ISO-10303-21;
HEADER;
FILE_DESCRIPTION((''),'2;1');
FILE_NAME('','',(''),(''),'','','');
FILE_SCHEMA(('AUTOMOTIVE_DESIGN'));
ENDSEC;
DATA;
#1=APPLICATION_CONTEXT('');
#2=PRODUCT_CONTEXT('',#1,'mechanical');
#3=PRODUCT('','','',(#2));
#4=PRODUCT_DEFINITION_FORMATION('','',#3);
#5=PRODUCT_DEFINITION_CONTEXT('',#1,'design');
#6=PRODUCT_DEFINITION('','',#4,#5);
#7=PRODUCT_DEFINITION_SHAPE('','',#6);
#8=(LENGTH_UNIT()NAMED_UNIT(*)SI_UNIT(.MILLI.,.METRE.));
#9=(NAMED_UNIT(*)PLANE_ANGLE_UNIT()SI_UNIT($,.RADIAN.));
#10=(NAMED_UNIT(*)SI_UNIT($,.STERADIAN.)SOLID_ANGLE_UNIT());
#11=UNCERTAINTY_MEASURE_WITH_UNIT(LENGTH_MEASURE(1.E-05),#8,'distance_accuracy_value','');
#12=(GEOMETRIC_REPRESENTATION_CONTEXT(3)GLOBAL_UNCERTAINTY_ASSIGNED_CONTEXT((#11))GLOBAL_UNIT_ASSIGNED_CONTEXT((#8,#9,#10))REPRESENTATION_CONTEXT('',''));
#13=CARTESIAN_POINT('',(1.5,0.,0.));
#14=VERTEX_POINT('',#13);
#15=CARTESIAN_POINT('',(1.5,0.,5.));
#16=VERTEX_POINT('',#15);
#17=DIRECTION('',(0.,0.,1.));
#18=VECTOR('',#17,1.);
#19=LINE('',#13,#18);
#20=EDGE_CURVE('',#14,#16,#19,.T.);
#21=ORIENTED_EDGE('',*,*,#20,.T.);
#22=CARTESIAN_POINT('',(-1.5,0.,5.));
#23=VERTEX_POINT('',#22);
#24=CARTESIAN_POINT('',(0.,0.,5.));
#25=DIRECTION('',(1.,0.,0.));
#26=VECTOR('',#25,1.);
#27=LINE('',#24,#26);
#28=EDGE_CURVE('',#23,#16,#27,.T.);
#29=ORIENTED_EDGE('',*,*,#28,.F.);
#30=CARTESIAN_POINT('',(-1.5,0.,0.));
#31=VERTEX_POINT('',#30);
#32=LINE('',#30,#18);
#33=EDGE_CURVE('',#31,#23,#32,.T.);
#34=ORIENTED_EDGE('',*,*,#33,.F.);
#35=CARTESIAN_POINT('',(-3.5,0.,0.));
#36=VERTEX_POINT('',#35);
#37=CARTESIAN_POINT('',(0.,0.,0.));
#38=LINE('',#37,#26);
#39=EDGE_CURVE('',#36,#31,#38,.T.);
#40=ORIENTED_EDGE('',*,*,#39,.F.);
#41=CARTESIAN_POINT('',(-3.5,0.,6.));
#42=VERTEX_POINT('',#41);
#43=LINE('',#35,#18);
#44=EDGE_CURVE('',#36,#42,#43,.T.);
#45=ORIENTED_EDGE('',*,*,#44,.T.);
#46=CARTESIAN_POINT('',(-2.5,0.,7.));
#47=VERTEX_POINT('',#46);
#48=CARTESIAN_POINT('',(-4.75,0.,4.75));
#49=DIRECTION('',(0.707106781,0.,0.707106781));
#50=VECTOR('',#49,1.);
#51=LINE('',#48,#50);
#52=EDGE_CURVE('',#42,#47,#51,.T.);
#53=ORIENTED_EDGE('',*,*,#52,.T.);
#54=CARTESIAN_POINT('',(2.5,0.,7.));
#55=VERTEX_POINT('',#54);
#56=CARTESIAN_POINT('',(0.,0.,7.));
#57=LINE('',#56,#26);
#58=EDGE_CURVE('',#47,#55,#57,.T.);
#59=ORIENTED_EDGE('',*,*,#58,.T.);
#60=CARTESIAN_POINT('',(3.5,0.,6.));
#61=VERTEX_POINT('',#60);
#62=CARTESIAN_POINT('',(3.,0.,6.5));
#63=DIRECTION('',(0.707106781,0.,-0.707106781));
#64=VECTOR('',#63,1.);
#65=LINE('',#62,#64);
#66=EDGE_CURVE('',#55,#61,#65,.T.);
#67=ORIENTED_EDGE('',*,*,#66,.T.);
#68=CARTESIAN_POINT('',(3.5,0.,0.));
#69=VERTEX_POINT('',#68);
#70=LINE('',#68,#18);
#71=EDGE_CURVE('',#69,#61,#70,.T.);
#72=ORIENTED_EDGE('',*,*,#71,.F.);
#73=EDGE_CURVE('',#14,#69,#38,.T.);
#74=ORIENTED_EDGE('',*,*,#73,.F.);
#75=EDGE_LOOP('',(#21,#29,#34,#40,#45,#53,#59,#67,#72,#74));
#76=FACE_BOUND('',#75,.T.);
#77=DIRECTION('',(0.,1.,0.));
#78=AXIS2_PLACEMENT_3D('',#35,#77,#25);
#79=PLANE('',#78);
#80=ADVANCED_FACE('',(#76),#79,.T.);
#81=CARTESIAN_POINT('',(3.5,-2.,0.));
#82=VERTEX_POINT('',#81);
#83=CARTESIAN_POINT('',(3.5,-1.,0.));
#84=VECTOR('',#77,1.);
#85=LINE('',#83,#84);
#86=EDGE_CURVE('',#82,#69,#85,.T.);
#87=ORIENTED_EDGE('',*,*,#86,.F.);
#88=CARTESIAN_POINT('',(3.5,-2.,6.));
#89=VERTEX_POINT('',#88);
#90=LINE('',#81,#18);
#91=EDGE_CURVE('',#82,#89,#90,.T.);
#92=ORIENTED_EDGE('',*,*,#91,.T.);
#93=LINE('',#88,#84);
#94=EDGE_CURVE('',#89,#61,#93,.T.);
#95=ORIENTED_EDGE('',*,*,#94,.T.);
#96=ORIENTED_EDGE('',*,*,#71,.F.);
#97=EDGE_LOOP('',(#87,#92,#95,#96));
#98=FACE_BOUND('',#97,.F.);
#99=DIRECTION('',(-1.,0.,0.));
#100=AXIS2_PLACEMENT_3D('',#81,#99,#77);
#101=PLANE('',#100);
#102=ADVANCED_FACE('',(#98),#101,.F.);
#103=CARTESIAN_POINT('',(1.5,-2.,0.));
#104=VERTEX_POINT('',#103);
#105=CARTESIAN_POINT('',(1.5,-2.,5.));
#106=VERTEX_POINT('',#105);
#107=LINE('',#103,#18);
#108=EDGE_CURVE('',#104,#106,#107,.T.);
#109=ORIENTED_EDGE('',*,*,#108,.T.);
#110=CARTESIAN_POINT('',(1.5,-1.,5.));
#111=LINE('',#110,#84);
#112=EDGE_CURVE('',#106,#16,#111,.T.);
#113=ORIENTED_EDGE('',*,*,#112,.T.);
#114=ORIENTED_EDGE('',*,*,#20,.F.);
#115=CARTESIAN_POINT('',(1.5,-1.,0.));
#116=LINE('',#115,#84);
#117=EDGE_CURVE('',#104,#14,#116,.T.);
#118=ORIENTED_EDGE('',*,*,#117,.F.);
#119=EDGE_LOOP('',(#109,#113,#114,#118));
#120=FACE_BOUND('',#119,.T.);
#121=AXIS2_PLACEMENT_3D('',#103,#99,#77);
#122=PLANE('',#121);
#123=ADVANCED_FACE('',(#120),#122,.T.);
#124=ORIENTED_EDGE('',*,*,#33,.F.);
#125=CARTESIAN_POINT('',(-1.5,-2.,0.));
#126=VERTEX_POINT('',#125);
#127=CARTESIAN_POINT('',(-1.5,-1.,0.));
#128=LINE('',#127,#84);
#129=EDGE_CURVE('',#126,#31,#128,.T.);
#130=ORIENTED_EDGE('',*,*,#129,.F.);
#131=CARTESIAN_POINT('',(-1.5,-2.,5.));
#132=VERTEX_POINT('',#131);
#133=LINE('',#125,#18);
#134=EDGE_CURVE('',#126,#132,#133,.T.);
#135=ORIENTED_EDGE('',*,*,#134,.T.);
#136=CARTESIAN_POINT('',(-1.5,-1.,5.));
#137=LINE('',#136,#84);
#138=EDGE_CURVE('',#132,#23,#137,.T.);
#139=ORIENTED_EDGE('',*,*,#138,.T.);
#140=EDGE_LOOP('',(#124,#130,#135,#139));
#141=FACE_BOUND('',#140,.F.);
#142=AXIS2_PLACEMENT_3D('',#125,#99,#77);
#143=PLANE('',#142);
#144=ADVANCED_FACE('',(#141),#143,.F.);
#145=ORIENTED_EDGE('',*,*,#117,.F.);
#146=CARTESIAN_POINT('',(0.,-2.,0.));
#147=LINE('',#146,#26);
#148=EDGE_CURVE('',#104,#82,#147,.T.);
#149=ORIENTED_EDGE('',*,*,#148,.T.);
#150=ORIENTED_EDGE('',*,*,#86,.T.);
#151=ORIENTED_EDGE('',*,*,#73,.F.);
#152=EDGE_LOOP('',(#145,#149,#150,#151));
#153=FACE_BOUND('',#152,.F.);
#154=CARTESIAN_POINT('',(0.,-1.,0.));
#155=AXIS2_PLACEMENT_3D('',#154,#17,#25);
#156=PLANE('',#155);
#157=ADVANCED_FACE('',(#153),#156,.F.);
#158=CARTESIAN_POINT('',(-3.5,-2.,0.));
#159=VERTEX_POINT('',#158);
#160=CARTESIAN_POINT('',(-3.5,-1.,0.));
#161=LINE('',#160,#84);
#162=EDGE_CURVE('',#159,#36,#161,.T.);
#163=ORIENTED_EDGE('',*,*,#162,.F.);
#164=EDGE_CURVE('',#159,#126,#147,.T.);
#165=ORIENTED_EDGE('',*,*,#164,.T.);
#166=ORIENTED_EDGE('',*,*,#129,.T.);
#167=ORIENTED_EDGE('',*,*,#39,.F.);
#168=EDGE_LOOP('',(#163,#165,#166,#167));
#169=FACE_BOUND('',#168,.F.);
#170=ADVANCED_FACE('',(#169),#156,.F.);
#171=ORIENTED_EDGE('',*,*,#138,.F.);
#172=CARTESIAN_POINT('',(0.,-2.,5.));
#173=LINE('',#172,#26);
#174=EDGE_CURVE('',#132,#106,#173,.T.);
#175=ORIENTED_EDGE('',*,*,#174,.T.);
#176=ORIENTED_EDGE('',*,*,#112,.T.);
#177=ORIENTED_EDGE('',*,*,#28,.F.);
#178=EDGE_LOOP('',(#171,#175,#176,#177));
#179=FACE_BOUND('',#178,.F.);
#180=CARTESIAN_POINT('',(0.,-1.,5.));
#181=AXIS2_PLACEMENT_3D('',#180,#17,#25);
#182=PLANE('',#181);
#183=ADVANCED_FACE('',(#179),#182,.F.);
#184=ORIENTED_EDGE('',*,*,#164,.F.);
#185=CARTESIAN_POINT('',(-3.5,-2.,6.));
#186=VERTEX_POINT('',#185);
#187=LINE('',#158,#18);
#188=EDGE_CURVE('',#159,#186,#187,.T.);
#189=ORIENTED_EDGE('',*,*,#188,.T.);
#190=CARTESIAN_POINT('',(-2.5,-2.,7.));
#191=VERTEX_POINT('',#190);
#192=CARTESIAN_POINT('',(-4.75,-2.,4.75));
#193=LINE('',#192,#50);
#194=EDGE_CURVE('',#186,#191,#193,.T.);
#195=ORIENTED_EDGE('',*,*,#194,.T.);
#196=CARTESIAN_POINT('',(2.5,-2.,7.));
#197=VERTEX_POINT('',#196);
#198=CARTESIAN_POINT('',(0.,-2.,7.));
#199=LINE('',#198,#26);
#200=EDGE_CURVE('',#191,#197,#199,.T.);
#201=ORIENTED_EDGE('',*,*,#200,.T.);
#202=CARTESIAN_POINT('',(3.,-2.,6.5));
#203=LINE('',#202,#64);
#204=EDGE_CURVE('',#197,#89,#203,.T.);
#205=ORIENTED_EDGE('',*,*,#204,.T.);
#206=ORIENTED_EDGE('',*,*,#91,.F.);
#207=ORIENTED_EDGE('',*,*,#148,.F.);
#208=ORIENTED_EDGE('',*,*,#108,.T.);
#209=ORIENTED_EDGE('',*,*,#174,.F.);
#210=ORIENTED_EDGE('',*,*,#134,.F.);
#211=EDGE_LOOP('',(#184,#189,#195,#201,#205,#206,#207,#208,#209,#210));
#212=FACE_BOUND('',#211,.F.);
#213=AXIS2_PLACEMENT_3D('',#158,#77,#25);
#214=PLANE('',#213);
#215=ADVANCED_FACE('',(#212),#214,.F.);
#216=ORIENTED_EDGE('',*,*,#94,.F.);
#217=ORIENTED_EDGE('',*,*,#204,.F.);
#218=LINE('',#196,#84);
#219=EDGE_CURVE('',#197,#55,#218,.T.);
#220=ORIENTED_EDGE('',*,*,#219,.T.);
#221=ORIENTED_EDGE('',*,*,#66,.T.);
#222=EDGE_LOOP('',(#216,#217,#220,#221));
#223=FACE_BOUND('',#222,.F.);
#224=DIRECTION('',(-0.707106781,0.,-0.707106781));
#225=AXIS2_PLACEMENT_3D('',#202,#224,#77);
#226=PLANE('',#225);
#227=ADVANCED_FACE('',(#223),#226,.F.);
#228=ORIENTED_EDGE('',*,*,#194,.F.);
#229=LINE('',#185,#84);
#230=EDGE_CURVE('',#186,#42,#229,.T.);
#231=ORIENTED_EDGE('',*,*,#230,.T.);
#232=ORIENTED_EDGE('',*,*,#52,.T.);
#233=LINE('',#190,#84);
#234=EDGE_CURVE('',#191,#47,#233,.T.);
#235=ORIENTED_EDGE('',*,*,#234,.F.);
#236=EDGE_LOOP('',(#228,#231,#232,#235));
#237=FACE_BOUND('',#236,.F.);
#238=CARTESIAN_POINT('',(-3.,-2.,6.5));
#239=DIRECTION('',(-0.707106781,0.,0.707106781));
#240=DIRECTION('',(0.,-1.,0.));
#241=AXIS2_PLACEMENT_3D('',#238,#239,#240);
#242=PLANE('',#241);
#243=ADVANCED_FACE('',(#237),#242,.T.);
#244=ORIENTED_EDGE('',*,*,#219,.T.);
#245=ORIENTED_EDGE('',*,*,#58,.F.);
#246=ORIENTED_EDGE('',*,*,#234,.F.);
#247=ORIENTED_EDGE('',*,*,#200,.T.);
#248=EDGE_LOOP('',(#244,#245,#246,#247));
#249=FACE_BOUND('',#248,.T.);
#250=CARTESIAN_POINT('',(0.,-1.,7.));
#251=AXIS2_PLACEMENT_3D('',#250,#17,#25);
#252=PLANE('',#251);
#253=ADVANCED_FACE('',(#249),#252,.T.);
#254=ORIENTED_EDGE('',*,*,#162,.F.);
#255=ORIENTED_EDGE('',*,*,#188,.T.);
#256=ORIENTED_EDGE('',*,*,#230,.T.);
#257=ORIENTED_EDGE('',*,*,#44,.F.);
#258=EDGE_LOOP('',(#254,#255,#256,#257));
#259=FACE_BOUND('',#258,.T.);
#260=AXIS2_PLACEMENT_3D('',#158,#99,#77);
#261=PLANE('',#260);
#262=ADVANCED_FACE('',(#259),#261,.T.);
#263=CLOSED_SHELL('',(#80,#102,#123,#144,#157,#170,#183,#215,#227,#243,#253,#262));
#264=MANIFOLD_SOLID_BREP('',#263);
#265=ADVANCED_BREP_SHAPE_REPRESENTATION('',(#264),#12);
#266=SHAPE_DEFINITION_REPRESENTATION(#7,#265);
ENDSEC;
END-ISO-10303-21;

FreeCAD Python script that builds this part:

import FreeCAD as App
import Part
import Sketcher
from FreeCAD import Vector
Q = App.Units.Quantity


def edges_at(feature, points):
    """Names of the edges that pass closest to the given points."""
    edges = feature.Shape.Edges
    near = lambda p: min(range(len(edges)), key=lambda i: edges[i].distToShape(Part.Vertex(*p))[0])
    return sorted({f"Edge{near(p) + 1}" for p in points})

doc = App.newDocument("Part")
body = doc.addObject("PartDesign::Body", "Body")

# Sketch on XY plane
sketch1 = doc.addObject("Sketcher::SketchObject", "Sketch")
body.addObject(sketch1)
sketch1.AttachmentSupport = (doc.XY_Plane, [""])
sketch1.MapMode = "FlatFace"
sketch1.addGeometry([
    Part.LineSegment(Vector(-1.5, 0, 0), Vector(-1.5, -2, 0)),
    Part.LineSegment(Vector(-1.5, -2, 0), Vector(1.5, -2, 0)),
    Part.LineSegment(Vector(1.5, -2, 0), Vector(1.5, 0, 0)),
    Part.LineSegment(Vector(1.5, 0, 0), Vector(-1.5, 0, 0)),
], False)
sketch1.addConstraint([
    Sketcher.Constraint("Coincident", 0, 2, 1, 1),
    Sketcher.Constraint("Coincident", 1, 2, 2, 1),
    Sketcher.Constraint("Coincident", 2, 2, 3, 1),
    Sketcher.Constraint("Coincident", 3, 2, 0, 1),
    Sketcher.Constraint("Vertical", 0),
    Sketcher.Constraint("Horizontal", 1),
    Sketcher.Constraint("Vertical", 2),
    Sketcher.Constraint("Horizontal", 3),
    Sketcher.Constraint("Symmetric", 2, 2, 3, 2, -1, 1),
    Sketcher.Constraint("DistanceX", 1, 1, 1, 2, Q("3 mm")),
    Sketcher.Constraint("DistanceY", 0, 2, 0, 1, Q("2 mm")),
])
pad1 = doc.addObject("PartDesign::Pad", "Pad")
body.addObject(pad1)
pad1.Profile = sketch1
pad1.Length = 5
body2 = doc.addObject("PartDesign::Body", "Body001")

# Sketch on XY plane
sketch2 = doc.addObject("Sketcher::SketchObject", "Sketch001")
body2.addObject(sketch2)
sketch2.AttachmentSupport = (doc.getObject("XY_Plane001"), [""])
sketch2.MapMode = "FlatFace"
sketch2.addGeometry([
    Part.LineSegment(Vector(-3.5, 0, 0), Vector(-3.5, -2, 0)),
    Part.LineSegment(Vector(-3.5, -2, 0), Vector(3.5, -2, 0)),
    Part.LineSegment(Vector(3.5, -2, 0), Vector(3.5, 0, 0)),
    Part.LineSegment(Vector(3.5, 0, 0), Vector(-3.5, 0, 0)),
], False)
sketch2.addConstraint([
    Sketcher.Constraint("Coincident", 0, 2, 1, 1),
    Sketcher.Constraint("Coincident", 1, 2, 2, 1),
    Sketcher.Constraint("Coincident", 2, 2, 3, 1),
    Sketcher.Constraint("Coincident", 3, 2, 0, 1),
    Sketcher.Constraint("Vertical", 0),
    Sketcher.Constraint("Horizontal", 1),
    Sketcher.Constraint("Vertical", 2),
    Sketcher.Constraint("Horizontal", 3),
    Sketcher.Constraint("Symmetric", 2, 2, 3, 2, -1, 1),
    Sketcher.Constraint("DistanceX", 1, 1, 1, 2, Q("7 mm")),
    Sketcher.Constraint("DistanceY", 0, 2, 0, 1, Q("2 mm")),
])
pad2 = doc.addObject("PartDesign::Pad", "Pad001")
body2.addObject(pad2)
pad2.Profile = sketch2
pad2.Length = 7
doc.recompute()

boolean = doc.addObject("PartDesign::Boolean", "Boolean")
body2.addObject(boolean)
boolean.Type = "Cut"
boolean.addObjects([body])
doc.recompute()

chamfer = doc.addObject("PartDesign::Chamfer", "Chamfer")
body2.addObject(chamfer)
chamfer.Base = (boolean, edges_at(boolean, [(-3.5, -1, 7), (3.5, -1, 7)]))
chamfer.Size = 1

doc.recompute()
